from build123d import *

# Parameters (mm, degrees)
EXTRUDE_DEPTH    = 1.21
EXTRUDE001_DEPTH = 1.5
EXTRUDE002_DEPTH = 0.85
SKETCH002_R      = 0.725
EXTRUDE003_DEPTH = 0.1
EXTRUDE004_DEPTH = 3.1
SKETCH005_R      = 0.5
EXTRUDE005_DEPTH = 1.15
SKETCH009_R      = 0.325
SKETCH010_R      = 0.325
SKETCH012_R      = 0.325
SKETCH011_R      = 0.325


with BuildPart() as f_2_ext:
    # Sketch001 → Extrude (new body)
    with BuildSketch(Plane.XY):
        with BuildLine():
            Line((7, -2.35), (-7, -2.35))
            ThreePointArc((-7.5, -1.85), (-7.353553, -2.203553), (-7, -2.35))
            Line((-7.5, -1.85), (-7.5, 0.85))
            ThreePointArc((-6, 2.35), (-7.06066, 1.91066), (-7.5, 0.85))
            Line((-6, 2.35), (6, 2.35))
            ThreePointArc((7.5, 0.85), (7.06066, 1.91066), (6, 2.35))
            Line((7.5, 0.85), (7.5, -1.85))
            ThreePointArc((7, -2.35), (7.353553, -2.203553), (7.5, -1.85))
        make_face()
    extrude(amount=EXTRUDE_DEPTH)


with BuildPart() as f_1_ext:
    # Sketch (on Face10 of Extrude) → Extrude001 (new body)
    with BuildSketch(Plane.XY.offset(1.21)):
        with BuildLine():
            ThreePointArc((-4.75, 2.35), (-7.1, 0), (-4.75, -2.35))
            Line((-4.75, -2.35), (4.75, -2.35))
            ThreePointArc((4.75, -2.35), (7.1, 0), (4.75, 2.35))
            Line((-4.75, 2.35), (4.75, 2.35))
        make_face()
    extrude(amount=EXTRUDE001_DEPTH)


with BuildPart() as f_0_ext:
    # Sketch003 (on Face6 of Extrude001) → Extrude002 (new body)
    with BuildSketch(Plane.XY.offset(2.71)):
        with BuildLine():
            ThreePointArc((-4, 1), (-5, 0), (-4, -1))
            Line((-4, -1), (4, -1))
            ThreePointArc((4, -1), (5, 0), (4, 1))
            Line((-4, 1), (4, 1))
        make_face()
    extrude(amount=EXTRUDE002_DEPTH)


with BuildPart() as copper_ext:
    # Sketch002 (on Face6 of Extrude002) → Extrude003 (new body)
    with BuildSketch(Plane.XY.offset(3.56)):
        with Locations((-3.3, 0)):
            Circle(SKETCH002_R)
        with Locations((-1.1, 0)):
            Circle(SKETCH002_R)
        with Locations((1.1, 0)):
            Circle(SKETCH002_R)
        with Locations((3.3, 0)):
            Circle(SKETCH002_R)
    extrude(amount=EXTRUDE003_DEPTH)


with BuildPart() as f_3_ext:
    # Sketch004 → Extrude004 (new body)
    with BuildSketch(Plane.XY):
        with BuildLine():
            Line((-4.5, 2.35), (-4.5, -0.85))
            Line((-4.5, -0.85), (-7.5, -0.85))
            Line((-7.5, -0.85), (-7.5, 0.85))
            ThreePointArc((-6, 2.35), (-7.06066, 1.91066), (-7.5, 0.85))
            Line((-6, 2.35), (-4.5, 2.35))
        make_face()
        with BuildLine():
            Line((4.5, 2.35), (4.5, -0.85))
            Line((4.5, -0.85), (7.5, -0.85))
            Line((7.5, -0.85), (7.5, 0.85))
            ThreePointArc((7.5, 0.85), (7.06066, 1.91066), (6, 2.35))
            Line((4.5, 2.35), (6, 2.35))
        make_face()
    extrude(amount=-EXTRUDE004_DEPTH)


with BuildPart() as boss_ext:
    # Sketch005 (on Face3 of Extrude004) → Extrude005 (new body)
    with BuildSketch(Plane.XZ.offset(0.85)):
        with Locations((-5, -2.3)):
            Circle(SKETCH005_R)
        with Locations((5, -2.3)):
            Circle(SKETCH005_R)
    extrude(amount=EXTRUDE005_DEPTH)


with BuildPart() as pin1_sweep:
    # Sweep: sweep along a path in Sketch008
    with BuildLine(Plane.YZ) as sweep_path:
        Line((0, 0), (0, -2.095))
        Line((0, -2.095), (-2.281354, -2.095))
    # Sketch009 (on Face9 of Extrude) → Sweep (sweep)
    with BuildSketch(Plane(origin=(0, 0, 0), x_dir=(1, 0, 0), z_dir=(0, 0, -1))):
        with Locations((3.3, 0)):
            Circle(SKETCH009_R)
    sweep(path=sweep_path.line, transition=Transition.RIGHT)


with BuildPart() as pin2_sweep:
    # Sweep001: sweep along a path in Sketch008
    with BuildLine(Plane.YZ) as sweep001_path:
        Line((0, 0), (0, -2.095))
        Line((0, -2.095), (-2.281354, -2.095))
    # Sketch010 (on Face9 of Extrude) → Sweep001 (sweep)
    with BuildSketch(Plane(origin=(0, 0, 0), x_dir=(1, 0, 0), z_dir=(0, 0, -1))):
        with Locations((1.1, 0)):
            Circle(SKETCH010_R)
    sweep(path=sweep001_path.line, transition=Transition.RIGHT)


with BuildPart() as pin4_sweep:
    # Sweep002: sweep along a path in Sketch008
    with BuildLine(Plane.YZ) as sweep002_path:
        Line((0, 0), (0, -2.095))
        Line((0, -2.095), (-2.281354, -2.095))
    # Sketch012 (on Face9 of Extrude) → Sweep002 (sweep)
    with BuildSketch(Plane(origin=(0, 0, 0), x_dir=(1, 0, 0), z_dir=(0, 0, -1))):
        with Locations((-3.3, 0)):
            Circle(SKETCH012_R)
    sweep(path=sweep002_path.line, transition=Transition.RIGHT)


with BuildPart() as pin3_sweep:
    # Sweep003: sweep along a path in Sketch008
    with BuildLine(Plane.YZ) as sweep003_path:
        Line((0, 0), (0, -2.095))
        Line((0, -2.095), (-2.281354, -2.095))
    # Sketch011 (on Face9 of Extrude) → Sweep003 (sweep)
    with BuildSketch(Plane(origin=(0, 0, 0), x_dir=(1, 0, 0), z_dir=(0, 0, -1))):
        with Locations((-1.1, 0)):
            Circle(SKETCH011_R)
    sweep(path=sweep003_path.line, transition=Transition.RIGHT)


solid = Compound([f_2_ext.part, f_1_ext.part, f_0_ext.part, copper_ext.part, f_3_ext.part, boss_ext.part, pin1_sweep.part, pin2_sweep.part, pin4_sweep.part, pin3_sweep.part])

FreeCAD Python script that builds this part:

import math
import FreeCAD as App
import Part
import Sketcher

V = App.Vector
Q = App.Units.Quantity

doc = App.newDocument("Part")
body = doc.addObject("PartDesign::Body", "Body")

# Sketch on XY plane
sketch1 = doc.addObject("Sketcher::SketchObject", "Sketch")
body.addObject(sketch1)
sketch1.AttachmentSupport = (doc.XY_Plane, [""])
sketch1.MapMode = "FlatFace"
sketch1.addGeometry([
    Part.LineSegment(V(-7, -2.4, 0), V(7, -2.4, 0)),  # 0
    Part.ArcOfCircle(Part.Circle(V(7, -1.8, 0), V(0, 0, 1), 0.5), math.radians(-90), math.radians(0)),  # 1
    Part.LineSegment(V(7.5, -1.9, 0), V(7.5, 0.8, 0)),  # 2
    Part.ArcOfCircle(Part.Circle(V(6, 0.8, 0), V(0, 0, 1), 1.5), math.radians(0), math.radians(90)),  # 3
    Part.LineSegment(V(6, 2.4, 0), V(-6, 2.4, 0)),  # 4
    Part.ArcOfCircle(Part.Circle(V(-6, 0.8, 0), V(0, 0, 1), 1.5), math.radians(90), math.radians(180)),  # 5
    Part.LineSegment(V(-7.5, 0.8, 0), V(-7.5, -1.9, 0)),  # 6
    Part.ArcOfCircle(Part.Circle(V(-7, -1.8, 0), V(0, 0, 1), 0.5), math.radians(-180), math.radians(-90)),  # 7
], False)
sketch1.addConstraint([
    Sketcher.Constraint("Coincident", 0, 2, 1, 1),
    Sketcher.Constraint("Coincident", 1, 2, 2, 1),
    Sketcher.Constraint("Tangent", 2, 2, 3, 1),
    Sketcher.Constraint("Tangent", 3, 2, 4, 1),
    Sketcher.Constraint("Tangent", 4, 2, 5, 1),
    Sketcher.Constraint("Tangent", 5, 2, 6, 1),
    Sketcher.Constraint("Coincident", 6, 2, 7, 1),
    Sketcher.Constraint("Coincident", 7, 2, 0, 1),
    Sketcher.Constraint("Horizontal", 0),
    Sketcher.Constraint("Vertical", 2),
    Sketcher.Constraint("Horizontal", 4),
    Sketcher.Constraint("Vertical", 6),
    Sketcher.Constraint("Equal", 3, 5),
    Sketcher.Constraint("Equal", 1, 7),
    Sketcher.Constraint("Symmetric", 1, 2, 6, 2, -2),
    Sketcher.Constraint("Horizontal", 7, 3, 1, 2),
    Sketcher.Constraint("Vertical", 1, 3, 0, 2),
    Sketcher.Constraint("Radius", 1, Q("0.500001 mm")),
    Sketcher.Constraint("Radius", 3, Q("1.500001 mm")),
    Sketcher.Constraint("DistanceX", 0, 1, 0, 2, Q("14 mm")),
    Sketcher.Constraint("DistanceX", 4, 2, 4, 1, Q("12 mm")),
    Sketcher.Constraint("DistanceY", 2, 1, 2, 2, Q("2.7 mm")),
    Sketcher.Constraint("DistanceY", 1, 3, -1, 1, Q("1.849999 mm")),
])
pad1 = doc.addObject("PartDesign::Pad", "Pad")
body.addObject(pad1)
pad1.Profile = sketch1
pad1.Length = 1.21
body2 = doc.addObject("PartDesign::Body", "Body001")

# Sketch on XY plane
sketch2 = doc.addObject("Sketcher::SketchObject", "Sketch001")
body2.addObject(sketch2)
sketch2.AttachmentSupport = (doc.getObject("XY_Plane001"), [""])
sketch2.MapMode = "FlatFace"
sketch2.AttachmentOffset = App.Placement(V(0, 0, 1.21), App.Rotation())
sketch2.addGeometry([
    Part.ArcOfCircle(Part.Circle(V(-4.8, 0, 0), V(0, 0, 1), 2.4), math.radians(90), math.radians(270)),
    Part.LineSegment(V(-4.8, -2.4, 0), V(4.8, -2.4, 0)),
    Part.ArcOfCircle(Part.Circle(V(4.8, 0, 0), V(0, 0, 1), 2.4), math.radians(-90), math.radians(90)),
    Part.LineSegment(V(4.8, 2.4, 0), V(-4.8, 2.4, 0)),
], False)
sketch2.addConstraint([
    Sketcher.Constraint("Tangent", 0, 2, 1, 1),
    Sketcher.Constraint("Tangent", 1, 2, 2, 1),
    Sketcher.Constraint("Tangent", 2, 2, 3, 1),
    Sketcher.Constraint("Tangent", 3, 2, 0, 1),
    Sketcher.Constraint("Horizontal", 1),
    Sketcher.Constraint("Horizontal", 3),
    Sketcher.Constraint("Symmetric", 0, 3, 2, 3, -1, 1),
    Sketcher.Constraint("Radius", 0, Q("2.35 mm")),
    Sketcher.Constraint("DistanceX", 1, 1, 1, 2, Q("9.5 mm")),
])
pad2 = doc.addObject("PartDesign::Pad", "Pad001")
body2.addObject(pad2)
pad2.Profile = sketch2
pad2.Length = 1.5
body3 = doc.addObject("PartDesign::Body", "Body002")

# Sketch on XY plane
sketch3 = doc.addObject("Sketcher::SketchObject", "Sketch002")
body3.addObject(sketch3)
sketch3.AttachmentSupport = (doc.getObject("XY_Plane002"), [""])
sketch3.MapMode = "FlatFace"
sketch3.AttachmentOffset = App.Placement(V(0, 0, 2.71), App.Rotation())
sketch3.addGeometry([
    Part.ArcOfCircle(Part.Circle(V(-4, 0, 0), V(0, 0, 1), 1), math.radians(90), math.radians(270)),
    Part.LineSegment(V(-4, -1, 0), V(4, -1, 0)),
    Part.ArcOfCircle(Part.Circle(V(4, 0, 0), V(0, 0, 1), 1), math.radians(-90), math.radians(90)),
    Part.LineSegment(V(4, 1, 0), V(-4, 1, 0)),
], False)
sketch3.addConstraint([
    Sketcher.Constraint("Tangent", 0, 2, 1, 1),
    Sketcher.Constraint("Tangent", 1, 2, 2, 1),
    Sketcher.Constraint("Tangent", 2, 2, 3, 1),
    Sketcher.Constraint("Tangent", 3, 2, 0, 1),
    Sketcher.Constraint("Horizontal", 1),
    Sketcher.Constraint("Horizontal", 3),
    Sketcher.Constraint("Symmetric", 0, 3, 2, 3, -1, 1),
    Sketcher.Constraint("Radius", 0, Q("1 mm")),
    Sketcher.Constraint("DistanceX", 1, 1, 1, 2, Q("8 mm")),
])
pad3 = doc.addObject("PartDesign::Pad", "Pad002")
body3.addObject(pad3)
pad3.Profile = sketch3
pad3.Length = 0.85
body4 = doc.addObject("PartDesign::Body", "Body003")
body4.AllowCompound = True

# Sketch on XY plane
sketch4 = doc.addObject("Sketcher::SketchObject", "Sketch003")
body4.addObject(sketch4)
sketch4.AttachmentSupport = (doc.getObject("XY_Plane003"), [""])
sketch4.MapMode = "FlatFace"
sketch4.AttachmentOffset = App.Placement(V(0, 0, 3.56), App.Rotation())
sketch4.addGeometry([
    Part.Circle(V(-3.3, 0, 0), V(0, 0, 1), 0.7),
    Part.Circle(V(-1.1, 0, 0), V(0, 0, 1), 0.7),
    Part.Circle(V(1.1, 0, 0), V(0, 0, 1), 0.7),
    Part.Circle(V(3.3, 0, 0), V(0, 0, 1), 0.7),
], False)
sketch4.addConstraint([
    Sketcher.Constraint("Equal", 0, 1),
    Sketcher.Constraint("Equal", 1, 2),
    Sketcher.Constraint("Equal", 2, 3),
    Sketcher.Constraint("Symmetric", 1, 3, 2, 3, -1, 1),
    Sketcher.Constraint("Symmetric", 0, 3, 3, 3, -1, 1),
    Sketcher.Constraint("PointOnObject", 0, 3, -1),
    Sketcher.Constraint("PointOnObject", 1, 3, -1),
    Sketcher.Constraint("Diameter", 0, Q("1.45 mm")),
    Sketcher.Constraint("DistanceX", 0, 3, -1, 1, Q("3.3 mm")),
    Sketcher.Constraint("DistanceX", 1, 3, -1, 1, Q("1.1 mm")),
])
pad4 = doc.addObject("PartDesign::Pad", "Pad003")
body4.addObject(pad4)
pad4.Profile = sketch4
pad4.Length = 0.1
body5 = doc.addObject("PartDesign::Body", "Body004")
body5.AllowCompound = True

# Sketch on XY plane
sketch5 = doc.addObject("Sketcher::SketchObject", "Sketch004")
body5.addObject(sketch5)
sketch5.AttachmentSupport = (doc.getObject("XY_Plane004"), [""])
sketch5.MapMode = "FlatFace"
sketch5.addGeometry([
    Part.LineSegment(V(-4.5, -0.8, 0), V(-4.5, 2.4, 0)),  # 0
    Part.LineSegment(V(-4.5, 2.4, 0), V(-6, 2.4, 0)),  # 1
    Part.ArcOfCircle(Part.Circle(V(-6, 0.8, 0), V(0, 0, 1), 1.5), math.radians(90), math.radians(180)),  # 2
    Part.LineSegment(V(-7.5, 0.8, 0), V(-7.5, -0.8, 0)),  # 3
    Part.LineSegment(V(-7.5, -0.8, 0), V(-4.5, -0.8, 0)),  # 4
    Part.LineSegment(V(4.5, 2.4, 0), V(4.5, -0.8, 0)),  # 5
    Part.LineSegment(V(4.5, -0.8, 0), V(7.5, -0.8, 0)),  # 6
    Part.LineSegment(V(7.5, -0.8, 0), V(7.5, 0.8, 0)),  # 7
    Part.ArcOfCircle(Part.Circle(V(6, 0.8, 0), V(0, 0, 1), 1.5), math.radians(0), math.radians(90)),  # 8
    Part.LineSegment(V(6, 2.4, 0), V(4.5, 2.4, 0)),  # 9
], False)
sketch5.addConstraint([
    Sketcher.Constraint("Coincident", 0, 2, 1, 1),
    Sketcher.Constraint("Tangent", 1, 2, 2, 1),
    Sketcher.Constraint("Tangent", 2, 2, 3, 1),
    Sketcher.Constraint("Coincident", 3, 2, 4, 1),
    Sketcher.Constraint("Coincident", 4, 2, 0, 1),
    Sketcher.Constraint("Coincident", 5, 2, 6, 1),
    Sketcher.Constraint("Coincident", 6, 2, 7, 1),
    Sketcher.Constraint("Tangent", 7, 2, 8, 1),
    Sketcher.Constraint("Tangent", 8, 2, 9, 1),
    Sketcher.Constraint("Coincident", 9, 2, 5, 1),
    Sketcher.Constraint("Vertical", 0),
    Sketcher.Constraint("Horizontal", 1),
    Sketcher.Constraint("Vertical", 3),
    Sketcher.Constraint("Horizontal", 4),
    Sketcher.Constraint("Vertical", 5),
    Sketcher.Constraint("Horizontal", 6),
    Sketcher.Constraint("Vertical", 7),
    Sketcher.Constraint("Horizontal", 9),
    Sketcher.Constraint("Equal", 2, 8),
    Sketcher.Constraint("Symmetric", 2, 2, 6, 2, -1, 1),
    Sketcher.Constraint("Symmetric", 4, 2, 5, 2, -2),
    Sketcher.Constraint("Horizontal", 2, 3, 8, 3),
    Sketcher.Constraint("Radius", 2, Q("1.500001 mm")),
    Sketcher.Constraint("DistanceX", 4, 1, 4, 2, Q("3 mm")),
    Sketcher.Constraint("DistanceY", 0, 1, 0, 2, Q("3.2 mm")),
    Sketcher.Constraint("DistanceX", 2, 3, -1, 1, Q("5.999999 mm")),
])
pad5 = doc.addObject("PartDesign::Pad", "Pad004")
body5.addObject(pad5)
pad5.Profile = sketch5
pad5.Length = 3.1
pad5.Reversed = True
body6 = doc.addObject("PartDesign::Body", "Body005")
body6.AllowCompound = True

# Sketch on XZ plane
sketch6 = doc.addObject("Sketcher::SketchObject", "Sketch005")
body6.addObject(sketch6)
sketch6.AttachmentSupport = (doc.getObject("XZ_Plane005"), [""])
sketch6.MapMode = "FlatFace"
sketch6.AttachmentOffset = App.Placement(V(0, 0, 0.85), App.Rotation())
sketch6.addGeometry([
    Part.Circle(V(-5, -2.3, 0), V(0, 0, 1), 0.5),
    Part.Circle(V(5, -2.3, 0), V(0, 0, 1), 0.5),
], False)
sketch6.addConstraint([
    Sketcher.Constraint("Equal", 0, 1),
    Sketcher.Constraint("Symmetric", 0, 3, 1, 3, -2),
    Sketcher.Constraint("Diameter", 0, Q("1 mm")),
    Sketcher.Constraint("DistanceX", 0, 3, -1, 1, Q("5 mm")),
    Sketcher.Constraint("DistanceY", 0, 3, -1, 1, Q("2.3 mm")),
])
pad6 = doc.addObject("PartDesign::Pad", "Pad005")
body6.addObject(pad6)
pad6.Profile = sketch6
pad6.Length = 1.15
body7 = doc.addObject("PartDesign::Body", "Body006")

# Sketch on XY plane
sketch7 = doc.addObject("Sketcher::SketchObject", "Sketch006")
body7.addObject(sketch7)
sketch7.AttachmentSupport = (doc.getObject("XY_Plane006"), [""])
sketch7.MapMode = "FlatFace"
sketch7.addGeometry(Part.Circle(V(3.3, 0, 0), V(0, 0, 1), 0.33), False)
sketch7.addConstraint([
    Sketcher.Constraint("PointOnObject", 0, 3, -1),
    Sketcher.Constraint("Diameter", 0, Q("0.65 mm")),
    Sketcher.Constraint("DistanceX", -1, 1, 0, 3, Q("3.3 mm")),
])

# Sketch on YZ plane
sketch8 = doc.addObject("Sketcher::SketchObject", "Sketch007")
body7.addObject(sketch8)
sketch8.AttachmentSupport = (doc.getObject("YZ_Plane006"), [""])
sketch8.MapMode = "FlatFace"
sketch8.addGeometry([
    Part.LineSegment(V(0, 0, 0), V(0, -2.1, 0)),
    Part.LineSegment(V(0, -2.1, 0), V(-2.3, -2.1, 0)),
], False)
sketch8.addConstraint([
    Sketcher.Constraint("Coincident", 0, 2, 1, 1),
    Sketcher.Constraint("Vertical", 0),
    Sketcher.Constraint("Horizontal", 1),
    Sketcher.Constraint("Coincident", 0, 1, -1, 1),
    Sketcher.Constraint("DistanceY", 0, 2, 0, 1, Q("2.095 mm")),
    Sketcher.Constraint("DistanceX", 1, 2, 1, 1, Q("2.281354 mm")),
])
doc.recompute()

additivepipe = doc.addObject("PartDesign::AdditivePipe", "AdditivePipe")
body7.addObject(additivepipe)
additivepipe.Profile = sketch7
additivepipe.Spine = (sketch8, ["Edge1", "Edge2"])
additivepipe.Transition = "Right corner"
body8 = doc.addObject("PartDesign::Body", "Body007")

# Sketch on XY plane
sketch9 = doc.addObject("Sketcher::SketchObject", "Sketch008")
body8.addObject(sketch9)
sketch9.AttachmentSupport = (doc.getObject("XY_Plane007"), [""])
sketch9.MapMode = "FlatFace"
sketch9.addGeometry(Part.Circle(V(1.1, 0, 0), V(0, 0, 1), 0.33), False)
sketch9.addConstraint([
    Sketcher.Constraint("PointOnObject", 0, 3, -1),
    Sketcher.Constraint("Diameter", 0, Q("0.65 mm")),
    Sketcher.Constraint("DistanceX", -1, 1, 0, 3, Q("1.1 mm")),
])

# Sketch on YZ plane
sketch10 = doc.addObject("Sketcher::SketchObject", "Sketch009")
body8.addObject(sketch10)
sketch10.AttachmentSupport = (doc.getObject("YZ_Plane007"), [""])
sketch10.MapMode = "FlatFace"
sketch10.addGeometry([
    Part.LineSegment(V(0, 0, 0), V(0, -2.1, 0)),
    Part.LineSegment(V(0, -2.1, 0), V(-2.3, -2.1, 0)),
], False)
sketch10.addConstraint([
    Sketcher.Constraint("Coincident", 0, 2, 1, 1),
    Sketcher.Constraint("Vertical", 0),
    Sketcher.Constraint("Horizontal", 1),
    Sketcher.Constraint("Coincident", 0, 1, -1, 1),
    Sketcher.Constraint("DistanceY", 0, 2, 0, 1, Q("2.095 mm")),
    Sketcher.Constraint("DistanceX", 1, 2, 1, 1, Q("2.281354 mm")),
])
doc.recompute()

additivepipe2 = doc.addObject("PartDesign::AdditivePipe", "AdditivePipe001")
body8.addObject(additivepipe2)
additivepipe2.Profile = sketch9
additivepipe2.Spine = (sketch10, ["Edge1", "Edge2"])
additivepipe2.Transition = "Right corner"
body9 = doc.addObject("PartDesign::Body", "Body008")

# Sketch on XY plane
sketch11 = doc.addObject("Sketcher::SketchObject", "Sketch010")
body9.addObject(sketch11)
sketch11.AttachmentSupport = (doc.getObject("XY_Plane008"), [""])
sketch11.MapMode = "FlatFace"
sketch11.addGeometry(Part.Circle(V(-3.3, 0, 0), V(0, 0, 1), 0.33), False)
sketch11.addConstraint([
    Sketcher.Constraint("PointOnObject", 0, 3, -1),
    Sketcher.Constraint("Diameter", 0, Q("0.65 mm")),
    Sketcher.Constraint("DistanceX", 0, 3, -1, 1, Q("3.3 mm")),
])

# Sketch on YZ plane
sketch12 = doc.addObject("Sketcher::SketchObject", "Sketch011")
body9.addObject(sketch12)
sketch12.AttachmentSupport = (doc.getObject("YZ_Plane008"), [""])
sketch12.MapMode = "FlatFace"
sketch12.addGeometry([
    Part.LineSegment(V(0, 0, 0), V(0, -2.1, 0)),
    Part.LineSegment(V(0, -2.1, 0), V(-2.3, -2.1, 0)),
], False)
sketch12.addConstraint([
    Sketcher.Constraint("Coincident", 0, 2, 1, 1),
    Sketcher.Constraint("Vertical", 0),
    Sketcher.Constraint("Horizontal", 1),
    Sketcher.Constraint("Coincident", 0, 1, -1, 1),
    Sketcher.Constraint("DistanceY", 0, 2, 0, 1, Q("2.095 mm")),
    Sketcher.Constraint("DistanceX", 1, 2, 1, 1, Q("2.281354 mm")),
])
doc.recompute()

additivepipe3 = doc.addObject("PartDesign::AdditivePipe", "AdditivePipe002")
body9.addObject(additivepipe3)
additivepipe3.Profile = sketch11
additivepipe3.Spine = (sketch12, ["Edge1", "Edge2"])
additivepipe3.Transition = "Right corner"
body10 = doc.addObject("PartDesign::Body", "Body009")

# Sketch on XY plane
sketch13 = doc.addObject("Sketcher::SketchObject", "Sketch012")
body10.addObject(sketch13)
sketch13.AttachmentSupport = (doc.getObject("XY_Plane009"), [""])
sketch13.MapMode = "FlatFace"
sketch13.addGeometry(Part.Circle(V(-1.1, 0, 0), V(0, 0, 1), 0.33), False)
sketch13.addConstraint([
    Sketcher.Constraint("PointOnObject", 0, 3, -1),
    Sketcher.Constraint("Diameter", 0, Q("0.65 mm")),
    Sketcher.Constraint("DistanceX", 0, 3, -1, 1, Q("1.1 mm")),
])

# Sketch on YZ plane
sketch14 = doc.addObject("Sketcher::SketchObject", "Sketch013")
body10.addObject(sketch14)
sketch14.AttachmentSupport = (doc.getObject("YZ_Plane009"), [""])
sketch14.MapMode = "FlatFace"
sketch14.addGeometry([
    Part.LineSegment(V(0, 0, 0), V(0, -2.1, 0)),
    Part.LineSegment(V(0, -2.1, 0), V(-2.3, -2.1, 0)),
], False)
sketch14.addConstraint([
    Sketcher.Constraint("Coincident", 0, 2, 1, 1),
    Sketcher.Constraint("Vertical", 0),
    Sketcher.Constraint("Horizontal", 1),
    Sketcher.Constraint("Coincident", 0, 1, -1, 1),
    Sketcher.Constraint("DistanceY", 0, 2, 0, 1, Q("2.095 mm")),
    Sketcher.Constraint("DistanceX", 1, 2, 1, 1, Q("2.281354 mm")),
])
doc.recompute()

additivepipe4 = doc.addObject("PartDesign::AdditivePipe", "AdditivePipe003")
body10.addObject(additivepipe4)
additivepipe4.Profile = sketch13
additivepipe4.Spine = (sketch14, ["Edge1", "Edge2"])
additivepipe4.Transition = "Right corner"

doc.recompute()
